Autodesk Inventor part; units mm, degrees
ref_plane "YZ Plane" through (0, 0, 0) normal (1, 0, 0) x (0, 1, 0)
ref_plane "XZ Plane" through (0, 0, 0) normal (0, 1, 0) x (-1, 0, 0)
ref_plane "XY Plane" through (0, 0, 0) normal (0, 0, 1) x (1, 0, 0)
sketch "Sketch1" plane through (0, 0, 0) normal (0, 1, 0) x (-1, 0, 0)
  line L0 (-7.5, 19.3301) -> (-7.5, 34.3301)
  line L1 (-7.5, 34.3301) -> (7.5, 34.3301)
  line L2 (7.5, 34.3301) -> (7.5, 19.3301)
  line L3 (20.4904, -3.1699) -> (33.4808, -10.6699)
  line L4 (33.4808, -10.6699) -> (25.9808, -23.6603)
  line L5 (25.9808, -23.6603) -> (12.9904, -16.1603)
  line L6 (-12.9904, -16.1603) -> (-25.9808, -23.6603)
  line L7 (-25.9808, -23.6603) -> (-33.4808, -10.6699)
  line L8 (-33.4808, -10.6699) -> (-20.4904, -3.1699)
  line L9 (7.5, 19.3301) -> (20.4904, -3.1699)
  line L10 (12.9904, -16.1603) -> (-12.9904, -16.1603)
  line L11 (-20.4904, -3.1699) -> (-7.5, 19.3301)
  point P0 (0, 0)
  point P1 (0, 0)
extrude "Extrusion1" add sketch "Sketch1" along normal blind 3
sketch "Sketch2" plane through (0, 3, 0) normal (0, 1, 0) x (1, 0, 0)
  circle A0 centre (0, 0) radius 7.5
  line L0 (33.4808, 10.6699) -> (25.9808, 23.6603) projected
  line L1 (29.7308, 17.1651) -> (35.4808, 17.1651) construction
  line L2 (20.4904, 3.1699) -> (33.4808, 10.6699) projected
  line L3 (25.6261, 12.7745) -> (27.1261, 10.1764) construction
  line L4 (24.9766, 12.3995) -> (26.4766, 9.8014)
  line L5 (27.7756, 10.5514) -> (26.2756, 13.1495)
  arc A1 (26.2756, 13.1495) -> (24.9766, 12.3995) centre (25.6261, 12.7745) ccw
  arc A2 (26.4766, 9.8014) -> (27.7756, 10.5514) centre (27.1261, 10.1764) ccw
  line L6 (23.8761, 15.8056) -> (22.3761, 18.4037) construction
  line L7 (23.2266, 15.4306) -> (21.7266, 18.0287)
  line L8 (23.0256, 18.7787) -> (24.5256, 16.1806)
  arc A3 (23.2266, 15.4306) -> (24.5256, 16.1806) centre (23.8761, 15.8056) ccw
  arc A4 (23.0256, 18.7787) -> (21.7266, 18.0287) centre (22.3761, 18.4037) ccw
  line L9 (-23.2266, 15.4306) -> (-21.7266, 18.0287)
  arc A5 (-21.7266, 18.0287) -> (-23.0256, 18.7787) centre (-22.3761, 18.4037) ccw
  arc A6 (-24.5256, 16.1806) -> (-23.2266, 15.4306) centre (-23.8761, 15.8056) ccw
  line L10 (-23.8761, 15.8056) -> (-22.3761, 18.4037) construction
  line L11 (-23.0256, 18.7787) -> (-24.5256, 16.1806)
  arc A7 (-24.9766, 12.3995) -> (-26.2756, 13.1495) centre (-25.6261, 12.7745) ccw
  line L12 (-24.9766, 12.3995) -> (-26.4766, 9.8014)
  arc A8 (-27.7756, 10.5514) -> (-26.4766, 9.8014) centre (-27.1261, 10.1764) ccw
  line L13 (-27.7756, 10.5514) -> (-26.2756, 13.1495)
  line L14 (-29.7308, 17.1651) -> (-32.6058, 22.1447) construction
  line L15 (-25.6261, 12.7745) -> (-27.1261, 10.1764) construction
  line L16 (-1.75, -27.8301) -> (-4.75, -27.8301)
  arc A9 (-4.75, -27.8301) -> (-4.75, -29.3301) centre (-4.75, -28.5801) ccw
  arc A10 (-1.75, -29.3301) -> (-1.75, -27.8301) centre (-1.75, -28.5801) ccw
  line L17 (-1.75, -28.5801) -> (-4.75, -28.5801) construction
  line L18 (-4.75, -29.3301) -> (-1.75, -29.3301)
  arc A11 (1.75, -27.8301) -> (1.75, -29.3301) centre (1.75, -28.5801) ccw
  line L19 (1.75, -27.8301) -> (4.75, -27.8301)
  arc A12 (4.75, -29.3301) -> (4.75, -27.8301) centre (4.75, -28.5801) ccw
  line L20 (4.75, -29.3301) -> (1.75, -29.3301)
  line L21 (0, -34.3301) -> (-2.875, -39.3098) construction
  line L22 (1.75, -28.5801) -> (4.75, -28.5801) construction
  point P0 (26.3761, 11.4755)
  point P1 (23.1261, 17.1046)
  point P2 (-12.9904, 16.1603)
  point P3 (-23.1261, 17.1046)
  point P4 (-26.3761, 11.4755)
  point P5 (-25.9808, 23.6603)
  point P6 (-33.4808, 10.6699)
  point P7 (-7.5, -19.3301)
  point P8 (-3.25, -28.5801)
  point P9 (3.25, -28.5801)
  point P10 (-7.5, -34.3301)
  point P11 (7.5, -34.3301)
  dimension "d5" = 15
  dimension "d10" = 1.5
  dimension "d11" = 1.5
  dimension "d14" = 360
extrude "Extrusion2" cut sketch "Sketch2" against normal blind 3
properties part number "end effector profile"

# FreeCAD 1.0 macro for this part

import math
import FreeCAD as App
import Part
import Sketcher
from FreeCAD import Vector
Q = App.Units.Quantity


def add_polygon(sketch, points):
    """Adds a closed chain of lines whose ends are joined by coincident constraints."""
    first, n = sketch.GeometryCount, len(points)
    for a, b in zip(points, points[1:] + points[:1]):
        sketch.addGeometry(Part.LineSegment(App.Vector(*a, 0), App.Vector(*b, 0)), False)
    for i in range(n):
        sketch.addConstraint(Sketcher.Constraint("Coincident", first + i, 2, first + (i + 1) % n, 1))

doc = App.newDocument("Part")
body = doc.addObject("PartDesign::Body", "Body")

sketch1 = body.newObject("Sketcher::SketchObject", "Sketch")
sketch1.AttachmentSupport = (doc.getObject("XZ_Plane"), [""])
sketch1.MapMode = "FlatFace"
add_polygon(sketch1, [(8, 34), (8, 19), (20, -3), (33, -11), (26, -24), (13, -16), (-13, -16), (-26, -24), (-33, -11), (-20, -3), (-8, 19), (-8, 34)])
sketch1.addConstraint(Sketcher.Constraint("Vertical", 0))
sketch1.addConstraint(Sketcher.Constraint("Horizontal", 5))
sketch1.addConstraint(Sketcher.Constraint("Vertical", 10))
sketch1.addConstraint(Sketcher.Constraint("Horizontal", 11))
sketch1.addConstraint(Sketcher.Constraint("Symmetric", 3, 2, 6, 2, -2))
sketch1.addConstraint(Sketcher.Constraint("Symmetric", 2, 2, 7, 2, -2))
sketch1.addConstraint(Sketcher.Constraint("Symmetric", 1, 2, 8, 2, -2))
sketch1.addConstraint(Sketcher.Constraint("Symmetric", 0, 2, 9, 2, -2))
sketch1.addConstraint(Sketcher.Constraint("Perpendicular", 2, 3))
sketch1.addConstraint(Sketcher.Constraint("Perpendicular", 3, 4))
sketch1.addConstraint(Sketcher.Constraint("Perpendicular", 1, 6))
sketch1.addConstraint(Sketcher.Constraint("Perpendicular", 6, 7))
sketch1.addConstraint(Sketcher.Constraint("Equal", 11, 0))
sketch1.addConstraint(Sketcher.Constraint("Equal", 2, 3))
sketch1.addConstraint(Sketcher.Constraint("Equal", 3, 4))
sketch1.addConstraint(Sketcher.Constraint("DistanceX", 11, 1, 11, 2, Q("15 mm")))
sketch1.addConstraint(Sketcher.Constraint("Angle", 1, Q("-60 deg")))
sketch1.addConstraint(Sketcher.Constraint("Distance", 2, Q("15 mm")))
sketch1.addConstraint(Sketcher.Constraint("DistanceY", 2, 2, 0, 2, Q("30 mm")))
sketch1.addConstraint(Sketcher.Constraint("DistanceY", -1, 1, 0, 2, Q("19.33 mm")))
pad1 = body.newObject("PartDesign::Pad", "Pad")
pad1.Profile = sketch1
pad1.Length = 3
pad1.Reversed = True

sketch2 = body.newObject("Sketcher::SketchObject", "Sketch001")
sketch2.AttachmentSupport = (doc.getObject("XZ_Plane"), [""])
sketch2.MapMode = "FlatFace"
sketch2.AttachmentOffset = App.Placement(Vector(0, 0, -3), App.Rotation())
sketch2.addGeometry(Part.Circle(Vector(0, 0, 0), Vector(0, 0, 1), 7.5), False)
sketch2.addGeometry(Part.ArcOfCircle(Part.Circle(Vector(25.6, -12.8, 0), Vector(0, 0, 1), 0.7), math.radians(150), math.radians(330)), False)
sketch2.addGeometry(Part.LineSegment(Vector(25, -12.4, 0), Vector(26.5, -9.8, 0)), False)
sketch2.addGeometry(Part.ArcOfCircle(Part.Circle(Vector(27.1, -10.2, 0), Vector(0, 0, 1), 0.7), math.radians(-30), math.radians(150)), False)
sketch2.addGeometry(Part.LineSegment(Vector(27.8, -10.6, 0), Vector(26.3, -13.1, 0)), False)
sketch2.addGeometry(Part.LineSegment(Vector(21.7, -18, 0), Vector(23.2, -15.4, 0)), False)
sketch2.addGeometry(Part.ArcOfCircle(Part.Circle(Vector(23.9, -15.8, 0), Vector(0, 0, 1), 0.7), math.radians(-30), math.radians(150)), False)
sketch2.addGeometry(Part.LineSegment(Vector(24.5, -16.2, 0), Vector(23, -18.8, 0)), False)
sketch2.addGeometry(Part.ArcOfCircle(Part.Circle(Vector(22.4, -18.4, 0), Vector(0, 0, 1), 0.7), math.radians(150), math.radians(330)), False)
sketch2.addGeometry(Part.ArcOfCircle(Part.Circle(Vector(-23.9, -15.8, 0), Vector(0, 0, 1), 0.7), math.radians(30), math.radians(210)), False)
sketch2.addGeometry(Part.LineSegment(Vector(-23.2, -15.4, 0), Vector(-21.7, -18, 0)), False)
sketch2.addGeometry(Part.ArcOfCircle(Part.Circle(Vector(-22.4, -18.4, 0), Vector(0, 0, 1), 0.7), math.radians(-150), math.radians(30)), False)
sketch2.addGeometry(Part.LineSegment(Vector(-23, -18.8, 0), Vector(-24.5, -16.2, 0)), False)
sketch2.addGeometry(Part.LineSegment(Vector(-26.5, -9.8, 0), Vector(-25, -12.4, 0)), False)
sketch2.addGeometry(Part.ArcOfCircle(Part.Circle(Vector(-25.6, -12.8, 0), Vector(0, 0, 1), 0.7), math.radians(-150), math.radians(30)), False)
sketch2.addGeometry(Part.LineSegment(Vector(-26.3, -13.1, 0), Vector(-27.8, -10.6, 0)), False)
sketch2.addGeometry(Part.ArcOfCircle(Part.Circle(Vector(-27.1, -10.2, 0), Vector(0, 0, 1), 0.7), math.radians(30), math.radians(210)), False)
sketch2.addGeometry(Part.ArcOfCircle(Part.Circle(Vector(-1.8, 28.6, 0), Vector(0, 0, 1), 0.8), math.radians(-90), math.radians(90)), False)
sketch2.addGeometry(Part.LineSegment(Vector(-1.8, 27.8, 0), Vector(-4.8, 27.8, 0)), False)
sketch2.addGeometry(Part.ArcOfCircle(Part.Circle(Vector(-4.8, 28.6, 0), Vector(0, 0, 1), 0.8), math.radians(90), math.radians(270)), False)
sketch2.addGeometry(Part.LineSegment(Vector(-4.8, 29.3, 0), Vector(-1.8, 29.3, 0)), False)
sketch2.addGeometry(Part.LineSegment(Vector(4.8, 27.8, 0), Vector(1.8, 27.8, 0)), False)
sketch2.addGeometry(Part.ArcOfCircle(Part.Circle(Vector(1.8, 28.6, 0), Vector(0, 0, 1), 0.8), math.radians(90), math.radians(270)), False)
sketch2.addGeometry(Part.LineSegment(Vector(1.8, 29.3, 0), Vector(4.8, 29.3, 0)), False)
sketch2.addGeometry(Part.ArcOfCircle(Part.Circle(Vector(4.8, 28.6, 0), Vector(0, 0, 1), 0.8), math.radians(-90), math.radians(90)), False)
sketch2.addConstraint(Sketcher.Constraint("Tangent", 1, 1, 2, 1))
sketch2.addConstraint(Sketcher.Constraint("Tangent", 2, 2, 3, 2))
sketch2.addConstraint(Sketcher.Constraint("Tangent", 3, 1, 4, 1))
sketch2.addConstraint(Sketcher.Constraint("Tangent", 4, 2, 1, 2))
sketch2.addConstraint(Sketcher.Constraint("Tangent", 5, 2, 6, 2))
sketch2.addConstraint(Sketcher.Constraint("Tangent", 6, 1, 7, 1))
sketch2.addConstraint(Sketcher.Constraint("Tangent", 7, 2, 8, 2))
sketch2.addConstraint(Sketcher.Constraint("Tangent", 8, 1, 5, 1))
sketch2.addConstraint(Sketcher.Constraint("Tangent", 9, 1, 10, 1))
sketch2.addConstraint(Sketcher.Constraint("Tangent", 10, 2, 11, 2))
sketch2.addConstraint(Sketcher.Constraint("Tangent", 11, 1, 12, 1))
sketch2.addConstraint(Sketcher.Constraint("Tangent", 12, 2, 9, 2))
sketch2.addConstraint(Sketcher.Constraint("Tangent", 13, 2, 14, 2))
sketch2.addConstraint(Sketcher.Constraint("Tangent", 14, 1, 15, 1))
sketch2.addConstraint(Sketcher.Constraint("Tangent", 15, 2, 16, 2))
sketch2.addConstraint(Sketcher.Constraint("Tangent", 16, 1, 13, 1))
sketch2.addConstraint(Sketcher.Constraint("Tangent", 17, 1, 18, 1))
sketch2.addConstraint(Sketcher.Constraint("Tangent", 18, 2, 19, 2))
sketch2.addConstraint(Sketcher.Constraint("Tangent", 19, 1, 20, 1))
sketch2.addConstraint(Sketcher.Constraint("Tangent", 20, 2, 17, 2))
sketch2.addConstraint(Sketcher.Constraint("Tangent", 21, 2, 22, 2))
sketch2.addConstraint(Sketcher.Constraint("Tangent", 22, 1, 23, 1))
sketch2.addConstraint(Sketcher.Constraint("Tangent", 23, 2, 24, 2))
sketch2.addConstraint(Sketcher.Constraint("Tangent", 24, 1, 21, 1))
sketch2.addConstraint(Sketcher.Constraint("Horizontal", 18))
sketch2.addConstraint(Sketcher.Constraint("Horizontal", 20))
sketch2.addConstraint(Sketcher.Constraint("Horizontal", 21))
sketch2.addConstraint(Sketcher.Constraint("Horizontal", 23))
sketch2.addConstraint(Sketcher.Constraint("Coincident", 0, 3, -1, 1))
sketch2.addConstraint(Sketcher.Constraint("Equal", 1, 3))
sketch2.addConstraint(Sketcher.Constraint("Equal", 3, 6))
sketch2.addConstraint(Sketcher.Constraint("Equal", 6, 8))
sketch2.addConstraint(Sketcher.Constraint("Equal", 8, 9))
sketch2.addConstraint(Sketcher.Constraint("Equal", 9, 11))
sketch2.addConstraint(Sketcher.Constraint("Equal", 11, 14))
sketch2.addConstraint(Sketcher.Constraint("Equal", 14, 16))
sketch2.addConstraint(Sketcher.Constraint("Equal", 16, 17))
sketch2.addConstraint(Sketcher.Constraint("Equal", 19, 22))
sketch2.addConstraint(Sketcher.Constraint("Symmetric", 6, 3, 9, 3, -2))
sketch2.addConstraint(Sketcher.Constraint("Symmetric", 8, 3, 11, 3, -2))
sketch2.addConstraint(Sketcher.Constraint("Symmetric", 1, 3, 14, 3, -2))
sketch2.addConstraint(Sketcher.Constraint("Symmetric", 3, 3, 16, 3, -2))
sketch2.addConstraint(Sketcher.Constraint("Symmetric", 17, 3, 22, 3, -2))
sketch2.addConstraint(Sketcher.Constraint("Parallel", 4, 5))
sketch2.addConstraint(Sketcher.Constraint("Equal", 20, 21))
sketch2.addConstraint(Sketcher.Constraint("Equal", 4, 5))
sketch2.addConstraint(Sketcher.Constraint("Diameter", 0, Q("15 mm")))
sketch2.addConstraint(Sketcher.Constraint("Radius", 1, Q("0.75 mm")))
sketch2.addConstraint(Sketcher.Constraint("DistanceX", 1, 3, 3, 3, Q("1.5 mm")))
sketch2.addConstraint(Sketcher.Constraint("DistanceX", 18, 2, 18, 1, Q("3 mm")))
sketch2.addConstraint(Sketcher.Constraint("Angle", 2, Q("60.0002 deg")))
sketch2.addConstraint(Sketcher.Constraint("DistanceX", 17, 3, 22, 3, Q("3.5 mm")))
sketch2.addConstraint(Sketcher.Constraint("DistanceY", -1, 1, 17, 3, Q("28.58 mm")))
sketch2.addConstraint(Sketcher.Constraint("DistanceX", 6, 3, 1, 3, Q("1.75 mm")))
sketch2.addConstraint(Sketcher.Constraint("DistanceX", -1, 1, 1, 3, Q("25.626 mm")))
sketch2.addConstraint(Sketcher.Constraint("DistanceY", 6, 3, 1, 3, Q("3.031 mm")))
sketch2.addConstraint(Sketcher.Constraint("DistanceY", 1, 3, -1, 1, Q("12.7745 mm")))
pocket1 = body.newObject("PartDesign::Pocket", "Pocket")
pocket1.Profile = sketch2
pocket1.Length = 3
pocket1.Reversed = True

doc.recompute()
